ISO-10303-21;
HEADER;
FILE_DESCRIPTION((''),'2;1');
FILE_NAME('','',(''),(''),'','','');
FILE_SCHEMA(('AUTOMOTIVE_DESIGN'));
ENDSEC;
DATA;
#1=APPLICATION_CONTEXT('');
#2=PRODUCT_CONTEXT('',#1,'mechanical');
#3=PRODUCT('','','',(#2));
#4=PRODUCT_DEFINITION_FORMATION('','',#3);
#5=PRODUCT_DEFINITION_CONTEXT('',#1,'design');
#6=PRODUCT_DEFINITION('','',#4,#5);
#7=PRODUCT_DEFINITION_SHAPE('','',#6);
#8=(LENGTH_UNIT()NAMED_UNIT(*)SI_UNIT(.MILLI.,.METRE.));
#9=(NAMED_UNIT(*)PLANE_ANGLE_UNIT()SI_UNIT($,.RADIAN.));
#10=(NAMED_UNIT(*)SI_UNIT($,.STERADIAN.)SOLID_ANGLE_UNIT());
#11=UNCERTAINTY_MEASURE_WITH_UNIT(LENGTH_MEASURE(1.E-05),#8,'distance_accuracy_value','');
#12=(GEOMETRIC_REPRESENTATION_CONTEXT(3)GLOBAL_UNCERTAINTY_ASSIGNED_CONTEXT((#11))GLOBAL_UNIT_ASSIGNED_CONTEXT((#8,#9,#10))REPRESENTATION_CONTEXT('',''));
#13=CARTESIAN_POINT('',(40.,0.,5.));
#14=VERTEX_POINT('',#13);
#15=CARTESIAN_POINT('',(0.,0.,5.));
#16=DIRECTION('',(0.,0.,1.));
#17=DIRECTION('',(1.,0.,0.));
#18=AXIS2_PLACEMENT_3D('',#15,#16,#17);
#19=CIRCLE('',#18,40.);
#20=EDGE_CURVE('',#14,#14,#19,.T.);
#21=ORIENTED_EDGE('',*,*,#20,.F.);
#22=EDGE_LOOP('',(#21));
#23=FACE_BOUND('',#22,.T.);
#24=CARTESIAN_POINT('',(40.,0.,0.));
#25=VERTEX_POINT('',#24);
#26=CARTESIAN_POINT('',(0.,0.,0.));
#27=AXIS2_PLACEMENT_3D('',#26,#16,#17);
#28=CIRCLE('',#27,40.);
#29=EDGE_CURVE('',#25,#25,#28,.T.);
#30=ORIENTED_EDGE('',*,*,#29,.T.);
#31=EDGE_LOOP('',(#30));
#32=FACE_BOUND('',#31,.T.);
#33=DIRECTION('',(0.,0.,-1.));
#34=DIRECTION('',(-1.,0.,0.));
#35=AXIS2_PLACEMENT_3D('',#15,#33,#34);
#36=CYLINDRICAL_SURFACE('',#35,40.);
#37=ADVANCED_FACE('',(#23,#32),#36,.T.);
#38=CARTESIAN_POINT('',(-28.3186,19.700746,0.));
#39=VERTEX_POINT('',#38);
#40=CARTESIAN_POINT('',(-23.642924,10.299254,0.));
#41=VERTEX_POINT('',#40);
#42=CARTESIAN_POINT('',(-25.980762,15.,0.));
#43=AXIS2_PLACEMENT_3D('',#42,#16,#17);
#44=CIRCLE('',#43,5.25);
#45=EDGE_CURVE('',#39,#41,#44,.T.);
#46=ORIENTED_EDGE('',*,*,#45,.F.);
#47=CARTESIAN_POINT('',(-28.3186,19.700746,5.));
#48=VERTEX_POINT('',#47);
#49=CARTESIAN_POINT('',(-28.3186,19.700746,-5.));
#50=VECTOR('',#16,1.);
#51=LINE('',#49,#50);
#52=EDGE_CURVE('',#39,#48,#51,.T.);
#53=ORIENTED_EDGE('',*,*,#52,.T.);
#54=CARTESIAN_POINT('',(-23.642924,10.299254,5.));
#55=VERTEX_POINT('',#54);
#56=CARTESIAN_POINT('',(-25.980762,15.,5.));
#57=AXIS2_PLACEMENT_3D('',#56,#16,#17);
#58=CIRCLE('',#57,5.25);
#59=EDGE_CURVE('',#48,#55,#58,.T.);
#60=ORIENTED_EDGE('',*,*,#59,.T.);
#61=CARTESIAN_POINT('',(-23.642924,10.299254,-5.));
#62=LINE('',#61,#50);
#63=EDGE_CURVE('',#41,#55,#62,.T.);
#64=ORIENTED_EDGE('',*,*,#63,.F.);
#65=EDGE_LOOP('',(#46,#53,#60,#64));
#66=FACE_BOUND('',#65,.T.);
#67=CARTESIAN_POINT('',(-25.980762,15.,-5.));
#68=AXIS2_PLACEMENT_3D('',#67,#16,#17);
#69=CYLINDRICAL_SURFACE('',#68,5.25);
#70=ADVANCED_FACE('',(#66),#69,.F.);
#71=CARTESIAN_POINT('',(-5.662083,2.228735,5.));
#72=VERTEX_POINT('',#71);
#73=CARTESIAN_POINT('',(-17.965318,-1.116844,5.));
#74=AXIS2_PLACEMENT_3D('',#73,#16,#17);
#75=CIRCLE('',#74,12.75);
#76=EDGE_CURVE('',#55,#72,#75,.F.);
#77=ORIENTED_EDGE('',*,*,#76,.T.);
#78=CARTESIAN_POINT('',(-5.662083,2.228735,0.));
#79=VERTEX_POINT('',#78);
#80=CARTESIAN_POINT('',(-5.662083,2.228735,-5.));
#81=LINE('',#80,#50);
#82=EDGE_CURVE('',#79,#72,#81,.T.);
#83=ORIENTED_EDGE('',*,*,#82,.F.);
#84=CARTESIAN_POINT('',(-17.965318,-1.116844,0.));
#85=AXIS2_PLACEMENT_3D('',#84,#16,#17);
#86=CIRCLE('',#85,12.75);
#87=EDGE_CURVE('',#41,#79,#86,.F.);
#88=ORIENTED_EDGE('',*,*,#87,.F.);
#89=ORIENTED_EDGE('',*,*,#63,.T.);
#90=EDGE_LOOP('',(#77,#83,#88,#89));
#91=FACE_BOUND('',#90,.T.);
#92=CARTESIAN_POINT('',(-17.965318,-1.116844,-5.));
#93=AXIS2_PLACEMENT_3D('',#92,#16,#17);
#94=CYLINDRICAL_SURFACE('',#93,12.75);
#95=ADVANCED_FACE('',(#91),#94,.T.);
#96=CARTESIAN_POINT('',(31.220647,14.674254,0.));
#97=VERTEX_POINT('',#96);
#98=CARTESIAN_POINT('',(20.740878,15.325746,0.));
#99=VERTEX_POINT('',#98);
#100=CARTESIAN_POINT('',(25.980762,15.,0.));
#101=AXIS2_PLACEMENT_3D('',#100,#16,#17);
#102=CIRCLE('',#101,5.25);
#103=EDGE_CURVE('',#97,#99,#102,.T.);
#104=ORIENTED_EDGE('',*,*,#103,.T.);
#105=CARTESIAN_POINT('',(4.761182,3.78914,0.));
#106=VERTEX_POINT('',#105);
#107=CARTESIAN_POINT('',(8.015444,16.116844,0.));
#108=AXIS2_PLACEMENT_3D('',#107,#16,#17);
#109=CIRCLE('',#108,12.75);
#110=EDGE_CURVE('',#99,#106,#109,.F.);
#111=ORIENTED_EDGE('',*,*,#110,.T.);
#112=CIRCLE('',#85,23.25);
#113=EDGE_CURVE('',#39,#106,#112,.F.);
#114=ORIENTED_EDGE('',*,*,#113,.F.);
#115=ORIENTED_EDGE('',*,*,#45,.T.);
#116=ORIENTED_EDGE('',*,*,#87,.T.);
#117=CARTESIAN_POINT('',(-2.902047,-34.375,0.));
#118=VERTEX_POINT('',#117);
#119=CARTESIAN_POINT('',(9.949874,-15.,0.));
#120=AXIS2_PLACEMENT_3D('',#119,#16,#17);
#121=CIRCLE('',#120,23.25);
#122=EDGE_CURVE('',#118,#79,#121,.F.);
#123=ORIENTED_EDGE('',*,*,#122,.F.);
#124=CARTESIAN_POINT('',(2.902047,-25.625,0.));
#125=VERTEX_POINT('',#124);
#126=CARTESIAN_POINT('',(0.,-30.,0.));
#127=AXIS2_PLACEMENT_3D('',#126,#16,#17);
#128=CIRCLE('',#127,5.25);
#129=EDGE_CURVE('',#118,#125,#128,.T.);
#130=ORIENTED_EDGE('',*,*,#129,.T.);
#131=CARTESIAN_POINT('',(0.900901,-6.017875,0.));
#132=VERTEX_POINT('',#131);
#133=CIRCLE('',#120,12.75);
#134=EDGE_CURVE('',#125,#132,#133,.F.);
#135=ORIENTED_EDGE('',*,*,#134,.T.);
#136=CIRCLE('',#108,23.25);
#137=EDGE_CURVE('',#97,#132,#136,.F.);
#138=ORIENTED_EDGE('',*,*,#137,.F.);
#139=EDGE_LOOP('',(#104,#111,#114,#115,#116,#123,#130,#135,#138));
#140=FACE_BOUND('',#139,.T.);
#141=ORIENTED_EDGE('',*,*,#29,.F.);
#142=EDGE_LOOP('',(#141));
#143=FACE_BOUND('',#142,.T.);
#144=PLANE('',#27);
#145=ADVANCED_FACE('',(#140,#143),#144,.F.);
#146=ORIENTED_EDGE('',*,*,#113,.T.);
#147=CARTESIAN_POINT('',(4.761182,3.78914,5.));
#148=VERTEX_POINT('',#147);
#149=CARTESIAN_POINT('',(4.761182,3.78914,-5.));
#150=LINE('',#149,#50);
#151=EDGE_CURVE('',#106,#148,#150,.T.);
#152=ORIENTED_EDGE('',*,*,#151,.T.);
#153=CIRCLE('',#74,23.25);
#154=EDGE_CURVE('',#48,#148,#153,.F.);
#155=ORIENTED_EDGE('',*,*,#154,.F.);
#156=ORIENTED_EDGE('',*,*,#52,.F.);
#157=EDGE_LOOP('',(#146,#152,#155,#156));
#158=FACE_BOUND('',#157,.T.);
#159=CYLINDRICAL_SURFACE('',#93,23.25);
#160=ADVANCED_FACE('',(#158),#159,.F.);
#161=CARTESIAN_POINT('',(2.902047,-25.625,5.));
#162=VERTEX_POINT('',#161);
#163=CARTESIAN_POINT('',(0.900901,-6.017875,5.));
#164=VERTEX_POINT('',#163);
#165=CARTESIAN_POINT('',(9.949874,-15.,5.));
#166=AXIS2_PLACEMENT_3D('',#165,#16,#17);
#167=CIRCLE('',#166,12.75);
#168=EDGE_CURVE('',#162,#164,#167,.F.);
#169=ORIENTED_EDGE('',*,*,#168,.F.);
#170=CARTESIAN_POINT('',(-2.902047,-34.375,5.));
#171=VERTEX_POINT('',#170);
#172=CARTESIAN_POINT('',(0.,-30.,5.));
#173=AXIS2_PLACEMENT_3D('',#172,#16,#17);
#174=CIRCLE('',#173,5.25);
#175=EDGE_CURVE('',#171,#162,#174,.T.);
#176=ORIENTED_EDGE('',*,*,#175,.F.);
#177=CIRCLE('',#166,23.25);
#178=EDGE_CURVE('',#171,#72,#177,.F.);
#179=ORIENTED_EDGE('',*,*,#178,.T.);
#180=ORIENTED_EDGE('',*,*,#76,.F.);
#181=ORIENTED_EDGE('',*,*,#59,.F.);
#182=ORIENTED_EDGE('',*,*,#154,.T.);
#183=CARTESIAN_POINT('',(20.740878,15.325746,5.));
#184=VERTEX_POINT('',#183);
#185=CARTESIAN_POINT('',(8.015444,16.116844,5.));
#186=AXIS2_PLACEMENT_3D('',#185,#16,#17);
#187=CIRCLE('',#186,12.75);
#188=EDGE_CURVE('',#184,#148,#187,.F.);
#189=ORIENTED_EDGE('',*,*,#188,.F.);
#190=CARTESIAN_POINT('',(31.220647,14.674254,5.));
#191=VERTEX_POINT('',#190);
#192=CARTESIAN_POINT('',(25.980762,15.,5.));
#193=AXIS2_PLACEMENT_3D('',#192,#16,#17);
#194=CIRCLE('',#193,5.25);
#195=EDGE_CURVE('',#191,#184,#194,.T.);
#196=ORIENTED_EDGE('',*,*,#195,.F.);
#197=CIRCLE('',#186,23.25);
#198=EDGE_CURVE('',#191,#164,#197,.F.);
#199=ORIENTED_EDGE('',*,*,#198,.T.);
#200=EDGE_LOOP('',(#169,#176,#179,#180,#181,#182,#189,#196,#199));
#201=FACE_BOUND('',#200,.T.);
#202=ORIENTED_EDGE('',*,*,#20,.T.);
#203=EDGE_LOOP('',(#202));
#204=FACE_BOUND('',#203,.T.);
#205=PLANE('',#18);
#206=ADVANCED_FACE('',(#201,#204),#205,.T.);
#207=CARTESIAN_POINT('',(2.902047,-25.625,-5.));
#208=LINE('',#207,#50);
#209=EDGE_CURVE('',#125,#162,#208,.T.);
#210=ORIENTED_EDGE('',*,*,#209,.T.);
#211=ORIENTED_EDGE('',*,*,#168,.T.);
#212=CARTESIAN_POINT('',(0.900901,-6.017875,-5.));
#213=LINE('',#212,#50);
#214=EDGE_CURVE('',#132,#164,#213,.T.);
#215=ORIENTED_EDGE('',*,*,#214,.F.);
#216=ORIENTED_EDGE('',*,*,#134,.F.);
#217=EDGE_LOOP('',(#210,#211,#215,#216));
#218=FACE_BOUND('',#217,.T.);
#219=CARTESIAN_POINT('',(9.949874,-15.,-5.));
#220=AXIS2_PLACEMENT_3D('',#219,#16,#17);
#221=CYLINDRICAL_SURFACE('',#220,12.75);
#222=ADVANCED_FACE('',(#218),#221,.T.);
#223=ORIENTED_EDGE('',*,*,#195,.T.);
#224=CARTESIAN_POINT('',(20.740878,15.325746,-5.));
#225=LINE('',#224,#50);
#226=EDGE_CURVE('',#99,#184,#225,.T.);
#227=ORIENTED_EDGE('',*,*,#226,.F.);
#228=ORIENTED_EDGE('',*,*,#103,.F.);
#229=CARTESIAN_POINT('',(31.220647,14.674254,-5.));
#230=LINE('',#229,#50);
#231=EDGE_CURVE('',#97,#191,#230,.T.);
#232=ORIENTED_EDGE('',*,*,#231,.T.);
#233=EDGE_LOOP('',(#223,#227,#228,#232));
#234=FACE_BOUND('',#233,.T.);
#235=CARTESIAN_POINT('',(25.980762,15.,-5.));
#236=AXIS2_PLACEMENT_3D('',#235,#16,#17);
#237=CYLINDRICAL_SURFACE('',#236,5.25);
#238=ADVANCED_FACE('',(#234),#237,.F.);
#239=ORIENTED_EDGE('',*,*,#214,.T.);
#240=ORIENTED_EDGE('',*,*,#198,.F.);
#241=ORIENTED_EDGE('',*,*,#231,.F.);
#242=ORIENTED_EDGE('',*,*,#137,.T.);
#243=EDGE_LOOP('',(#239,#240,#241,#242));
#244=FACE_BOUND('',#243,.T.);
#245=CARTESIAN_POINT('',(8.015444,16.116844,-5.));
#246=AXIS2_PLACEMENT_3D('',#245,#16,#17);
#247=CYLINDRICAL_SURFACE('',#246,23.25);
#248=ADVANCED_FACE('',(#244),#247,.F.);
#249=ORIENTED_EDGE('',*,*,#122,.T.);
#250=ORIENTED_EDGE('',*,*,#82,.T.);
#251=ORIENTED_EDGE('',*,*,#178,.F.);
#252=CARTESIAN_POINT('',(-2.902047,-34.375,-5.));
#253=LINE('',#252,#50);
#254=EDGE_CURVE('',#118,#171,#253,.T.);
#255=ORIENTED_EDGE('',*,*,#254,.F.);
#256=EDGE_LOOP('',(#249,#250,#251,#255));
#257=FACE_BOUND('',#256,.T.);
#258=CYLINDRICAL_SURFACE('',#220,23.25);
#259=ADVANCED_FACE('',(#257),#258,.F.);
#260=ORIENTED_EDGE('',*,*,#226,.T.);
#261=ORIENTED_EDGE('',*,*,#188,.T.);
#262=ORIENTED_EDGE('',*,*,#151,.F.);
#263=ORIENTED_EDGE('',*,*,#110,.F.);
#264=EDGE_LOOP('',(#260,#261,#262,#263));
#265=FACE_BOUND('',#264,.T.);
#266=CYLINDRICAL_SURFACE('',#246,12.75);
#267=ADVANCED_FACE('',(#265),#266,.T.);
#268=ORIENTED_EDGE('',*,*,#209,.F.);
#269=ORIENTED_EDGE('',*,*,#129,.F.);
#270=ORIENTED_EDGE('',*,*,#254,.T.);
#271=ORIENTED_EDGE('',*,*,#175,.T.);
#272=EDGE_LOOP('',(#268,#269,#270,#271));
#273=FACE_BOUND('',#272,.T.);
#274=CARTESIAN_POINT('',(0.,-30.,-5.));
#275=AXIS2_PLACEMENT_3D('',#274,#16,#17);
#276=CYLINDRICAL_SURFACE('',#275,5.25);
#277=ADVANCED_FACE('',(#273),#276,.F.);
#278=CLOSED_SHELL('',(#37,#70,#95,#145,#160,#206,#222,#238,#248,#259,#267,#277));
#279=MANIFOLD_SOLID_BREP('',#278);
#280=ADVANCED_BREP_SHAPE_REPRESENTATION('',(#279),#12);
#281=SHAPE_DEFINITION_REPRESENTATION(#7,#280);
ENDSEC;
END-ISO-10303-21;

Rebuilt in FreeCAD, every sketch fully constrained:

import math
import FreeCAD as App
import Part
import Sketcher
from FreeCAD import Vector

doc = App.newDocument("Part")
body = doc.addObject("PartDesign::Body", "Body")

# Sketch on XY plane
sketch1 = body.newObject("Sketcher::SketchObject", "Sketch")
sketch1.AttachmentSupport = (doc.getObject("XY_Plane"), [""])
sketch1.MapMode = "FlatFace"
sketch1.addGeometry(Part.Circle(Vector(0, 0, 0), Vector(0, 0, 1), 40), False)
sketch1.addConstraint([
    Sketcher.Constraint("Coincident", 0, 3, -1, 1),
    Sketcher.Constraint("Diameter", 0, 80.0),
])
pad1 = body.newObject("PartDesign::Pad", "Pad")
pad1.Profile = sketch1
pad1.Length = 5

# Sketch on XY plane
sketch2 = body.newObject("Sketcher::SketchObject", "Sketch001")
sketch2.AttachmentSupport = (doc.getObject("XY_Plane"), [""])
sketch2.MapMode = "FlatFace"
sketch2.AttachmentOffset = App.Placement(Vector(0, 0, 5), App.Rotation())
sketch2.addGeometry([
    Part.ArcOfCircle(Part.Circle(Vector(8, 16, 0), Vector(0, 0, 1), 13), math.radians(-105), math.radians(-4)),  # 0
    Part.ArcOfCircle(Part.Circle(Vector(-18, -1, 0), Vector(0, 0, 1), 23), math.radians(12), math.radians(116)),  # 1
    Part.ArcOfCircle(Part.Circle(Vector(-26, 15, 0), Vector(0, 0, 1), 5), math.radians(116), math.radians(296)),  # 2
    Part.ArcOfCircle(Part.Circle(Vector(-18, -1, 0), Vector(0, 0, 1), 13), math.radians(15), math.radians(116)),  # 3
    Part.ArcOfCircle(Part.Circle(Vector(10, -15, 0), Vector(0, 0, 1), 23), math.radians(132), math.radians(236)),  # 4
    Part.ArcOfCircle(Part.Circle(Vector(0, -30, 0), Vector(0, 0, 1), 5), math.radians(-124), math.radians(56)),  # 5
    Part.ArcOfCircle(Part.Circle(Vector(10, -15, 0), Vector(0, 0, 1), 13), math.radians(135), math.radians(236)),  # 6
    Part.ArcOfCircle(Part.Circle(Vector(8, 16, 0), Vector(0, 0, 1), 23), math.radians(-108), math.radians(-4)),  # 7
    Part.ArcOfCircle(Part.Circle(Vector(26, 15, 0), Vector(0, 0, 1), 5), math.radians(-4), math.radians(176)),  # 8
], False)
sketch2.addConstraint([
    Sketcher.Constraint("Coincident", 0, 1, 1, 1),
    Sketcher.Constraint("Tangent", 1, 2, 2, 1),
    Sketcher.Constraint("Tangent", 2, 2, 3, 2),
    Sketcher.Constraint("Coincident", 3, 1, 4, 1),
    Sketcher.Constraint("Tangent", 4, 2, 5, 1),
    Sketcher.Constraint("Tangent", 5, 2, 6, 2),
    Sketcher.Constraint("Coincident", 6, 1, 7, 1),
    Sketcher.Constraint("Tangent", 7, 2, 8, 1),
    Sketcher.Constraint("Tangent", 8, 2, 0, 2),
    Sketcher.Constraint("Coincident", 3, 3, 1, 3),
    Sketcher.Constraint("Coincident", 6, 3, 4, 3),
    Sketcher.Constraint("Coincident", 7, 3, 0, 3),
    Sketcher.Constraint("Equal", 0, 3),
    Sketcher.Constraint("Equal", 1, 4),
    Sketcher.Constraint("Equal", 2, 5),
    Sketcher.Constraint("Equal", 4, 7),
    Sketcher.Constraint("Symmetric", 2, 3, 8, 3, -2),
    Sketcher.Constraint("PointOnObject", 5, 3, -2),
    Sketcher.Constraint("Radius", 0, 12.75),
    Sketcher.Constraint("Radius", 1, 23.25),
    Sketcher.Constraint("DistanceY", -1, 1, 2, 3, 15.0),
    Sketcher.Constraint("DistanceY", 4, 3, -1, 1, 15.0),
    Sketcher.Constraint("DistanceY", 5, 3, -1, 1, 30.0),
    Sketcher.Constraint("DistanceX", 1, 2, -1, 1, 28.3186),
    Sketcher.Constraint("DistanceX", -1, 1, 6, 1, 0.900901),
    Sketcher.Constraint("DistanceX", 1, 3, 0, 1, 22.7265),
])
pocket1 = body.newObject("PartDesign::Pocket", "Pocket")
pocket1.Profile = sketch2
pocket1.Length = 10

doc.recompute()
